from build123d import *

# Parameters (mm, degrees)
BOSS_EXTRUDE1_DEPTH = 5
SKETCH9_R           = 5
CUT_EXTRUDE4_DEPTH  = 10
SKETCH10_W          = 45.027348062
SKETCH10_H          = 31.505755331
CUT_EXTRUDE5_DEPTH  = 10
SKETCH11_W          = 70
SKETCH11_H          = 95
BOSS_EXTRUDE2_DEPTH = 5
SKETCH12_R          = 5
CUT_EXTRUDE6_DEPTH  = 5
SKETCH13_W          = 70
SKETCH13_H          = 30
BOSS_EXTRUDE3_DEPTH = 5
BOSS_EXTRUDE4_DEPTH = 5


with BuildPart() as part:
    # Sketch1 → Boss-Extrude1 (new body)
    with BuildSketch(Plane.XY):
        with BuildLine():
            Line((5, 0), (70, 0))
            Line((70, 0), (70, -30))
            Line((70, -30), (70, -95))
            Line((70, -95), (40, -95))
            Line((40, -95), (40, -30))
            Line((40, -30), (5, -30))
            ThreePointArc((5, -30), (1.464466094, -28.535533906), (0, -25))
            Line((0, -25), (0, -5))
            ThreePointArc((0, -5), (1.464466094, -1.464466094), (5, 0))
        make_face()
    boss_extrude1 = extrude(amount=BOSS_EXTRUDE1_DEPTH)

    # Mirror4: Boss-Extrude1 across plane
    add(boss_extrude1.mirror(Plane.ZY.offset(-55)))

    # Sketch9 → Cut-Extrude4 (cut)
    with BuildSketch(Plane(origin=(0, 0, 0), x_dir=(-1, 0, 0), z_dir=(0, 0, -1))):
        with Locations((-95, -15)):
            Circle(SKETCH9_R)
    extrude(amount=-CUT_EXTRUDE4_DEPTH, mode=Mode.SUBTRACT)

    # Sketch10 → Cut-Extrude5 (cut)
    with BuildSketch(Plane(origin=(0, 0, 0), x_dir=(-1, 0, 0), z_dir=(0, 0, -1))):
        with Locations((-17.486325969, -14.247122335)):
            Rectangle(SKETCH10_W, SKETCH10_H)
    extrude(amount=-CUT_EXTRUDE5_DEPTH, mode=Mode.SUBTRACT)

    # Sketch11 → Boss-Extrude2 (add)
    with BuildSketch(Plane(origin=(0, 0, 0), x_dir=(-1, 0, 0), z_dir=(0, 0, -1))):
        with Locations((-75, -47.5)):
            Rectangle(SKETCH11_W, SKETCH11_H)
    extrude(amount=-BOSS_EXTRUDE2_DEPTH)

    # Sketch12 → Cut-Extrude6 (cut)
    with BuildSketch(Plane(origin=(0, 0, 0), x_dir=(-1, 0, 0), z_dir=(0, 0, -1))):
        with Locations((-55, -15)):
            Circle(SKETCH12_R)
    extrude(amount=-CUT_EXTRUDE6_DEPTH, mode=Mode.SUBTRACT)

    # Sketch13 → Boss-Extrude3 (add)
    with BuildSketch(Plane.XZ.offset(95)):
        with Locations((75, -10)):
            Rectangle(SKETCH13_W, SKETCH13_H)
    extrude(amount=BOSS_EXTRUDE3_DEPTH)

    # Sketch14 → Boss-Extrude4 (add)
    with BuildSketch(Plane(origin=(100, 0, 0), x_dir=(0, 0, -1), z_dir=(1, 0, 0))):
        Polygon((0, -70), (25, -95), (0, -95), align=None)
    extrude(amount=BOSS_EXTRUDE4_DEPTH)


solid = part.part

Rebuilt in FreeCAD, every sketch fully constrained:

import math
import FreeCAD as App
import Part
import Sketcher
from FreeCAD import Vector
Q = App.Units.Quantity


def add_polygon(sketch, points):
    """Adds a closed chain of lines whose ends are joined by coincident constraints."""
    first, n = sketch.GeometryCount, len(points)
    for a, b in zip(points, points[1:] + points[:1]):
        sketch.addGeometry(Part.LineSegment(App.Vector(*a, 0), App.Vector(*b, 0)), False)
    for i in range(n):
        sketch.addConstraint(Sketcher.Constraint("Coincident", first + i, 2, first + (i + 1) % n, 1))

doc = App.newDocument("Part")
body = doc.addObject("PartDesign::Body", "Body")

# Sketch on XY plane
sketch1 = body.newObject("Sketcher::SketchObject", "Sketch")
sketch1.AttachmentSupport = (doc.getObject("XY_Plane"), [""])
sketch1.MapMode = "FlatFace"
sketch1.addGeometry([
    Part.LineSegment(Vector(70, 0, 0), Vector(5, 0, 0)),  # 0
    Part.ArcOfCircle(Part.Circle(Vector(5, -5, 0), Vector(0, 0, 1), 5), math.radians(90), math.radians(180)),  # 1
    Part.LineSegment(Vector(0, -5, 0), Vector(0, -25, 0)),  # 2
    Part.ArcOfCircle(Part.Circle(Vector(5, -25, 0), Vector(0, 0, 1), 5), math.radians(180), math.radians(270)),  # 3
    Part.LineSegment(Vector(5, -30, 0), Vector(40, -30, 0)),  # 4
    Part.LineSegment(Vector(40, -30, 0), Vector(40, -95, 0)),  # 5
    Part.LineSegment(Vector(40, -95, 0), Vector(70, -95, 0)),  # 6
    Part.LineSegment(Vector(70, -95, 0), Vector(70, 0, 0)),  # 7
], False)
sketch1.addConstraint([
    Sketcher.Constraint("Tangent", 0, 2, 1, 1),
    Sketcher.Constraint("Tangent", 1, 2, 2, 1),
    Sketcher.Constraint("Tangent", 2, 2, 3, 1),
    Sketcher.Constraint("Tangent", 3, 2, 4, 1),
    Sketcher.Constraint("Coincident", 4, 2, 5, 1),
    Sketcher.Constraint("Coincident", 5, 2, 6, 1),
    Sketcher.Constraint("Coincident", 6, 2, 7, 1),
    Sketcher.Constraint("Coincident", 7, 2, 0, 1),
    Sketcher.Constraint("Horizontal", 0),
    Sketcher.Constraint("Vertical", 2),
    Sketcher.Constraint("Horizontal", 4),
    Sketcher.Constraint("Vertical", 5),
    Sketcher.Constraint("Horizontal", 6),
    Sketcher.Constraint("Vertical", 7),
    Sketcher.Constraint("Equal", 1, 3),
    Sketcher.Constraint("PointOnObject", 0, 2, -1),
    Sketcher.Constraint("PointOnObject", 1, 2, -2),
    Sketcher.Constraint("Equal", 0, 5),
    Sketcher.Constraint("Radius", 1, Q("5 mm")),
    Sketcher.Constraint("DistanceX", 0, 2, 0, 1, Q("65 mm")),
    Sketcher.Constraint("DistanceX", 4, 1, 4, 2, Q("35 mm")),
    Sketcher.Constraint("DistanceY", 2, 2, 2, 1, Q("20 mm")),
])
pad1 = body.newObject("PartDesign::Pad", "Pad")
pad1.Profile = sketch1
pad1.Length = 5
doc.recompute()

datumplane = body.newObject("PartDesign::Plane", "DatumPlane")
datumplane.AttachmentSupport = (doc.getObject("YZ_Plane"), [""])
datumplane.MapMode = "FlatFace"
datumplane.AttachmentOffset = App.Placement(Vector(0, 0, 55), App.Rotation())
mirrored = body.newObject("PartDesign::Mirrored", "Mirrored")
mirrored.Originals = [pad1]
mirrored.MirrorPlane = (datumplane, [""])
body.Tip = mirrored

# Sketch on XY plane
sketch2 = body.newObject("Sketcher::SketchObject", "Sketch001")
sketch2.AttachmentSupport = (doc.getObject("XY_Plane"), [""])
sketch2.MapMode = "FlatFace"
sketch2.addGeometry(Part.Circle(Vector(95, -15, 0), Vector(0, 0, 1), 5), False)
sketch2.addConstraint([
    Sketcher.Constraint("Diameter", 0, Q("10 mm")),
    Sketcher.Constraint("DistanceX", -1, 1, 0, 3, Q("95 mm")),
    Sketcher.Constraint("DistanceY", 0, 3, -1, 1, Q("15 mm")),
])
pocket1 = body.newObject("PartDesign::Pocket", "Pocket")
pocket1.Profile = sketch2
pocket1.Length = 10
pocket1.Reversed = True

# Sketch on XY plane
sketch3 = body.newObject("Sketcher::SketchObject", "Sketch002")
sketch3.AttachmentSupport = (doc.getObject("XY_Plane"), [""])
sketch3.MapMode = "FlatFace"
add_polygon(sketch3, [(40, 2), (40, -30), (-5, -30), (-5, 2)])  # lines 0-3
sketch3.addConstraint([
    Sketcher.Constraint("Vertical", 0),
    Sketcher.Constraint("Horizontal", 1),
    Sketcher.Constraint("Vertical", 2),
    Sketcher.Constraint("Horizontal", 3),
    Sketcher.Constraint("DistanceX", -1, 1, 0, 2, Q("40 mm")),
    Sketcher.Constraint("DistanceY", 0, 2, -1, 1, Q("30 mm")),
    Sketcher.Constraint("DistanceX", 1, 2, 1, 1, Q("45.027348 mm")),
    Sketcher.Constraint("DistanceY", 0, 2, 0, 1, Q("31.505755 mm")),
])
pocket2 = body.newObject("PartDesign::Pocket", "Pocket001")
pocket2.Profile = sketch3
pocket2.Length = 10
pocket2.Reversed = True

# Sketch on XY plane
sketch4 = body.newObject("Sketcher::SketchObject", "Sketch003")
sketch4.AttachmentSupport = (doc.getObject("XY_Plane"), [""])
sketch4.MapMode = "FlatFace"
add_polygon(sketch4, [(110, 0), (110, -95), (40, -95), (40, 0)])  # lines 0-3
sketch4.addConstraint([
    Sketcher.Constraint("Vertical", 0),
    Sketcher.Constraint("Horizontal", 1),
    Sketcher.Constraint("Vertical", 2),
    Sketcher.Constraint("Horizontal", 3),
    Sketcher.Constraint("PointOnObject", 2, 2, -1),
    Sketcher.Constraint("DistanceX", 1, 2, 1, 1, Q("70 mm")),
    Sketcher.Constraint("DistanceY", 0, 2, 0, 1, Q("95 mm")),
    Sketcher.Constraint("DistanceX", -1, 1, 0, 2, Q("110 mm")),
])
pad2 = body.newObject("PartDesign::Pad", "Pad001")
pad2.Profile = sketch4
pad2.Length = 5

# Sketch on XY plane
sketch5 = body.newObject("Sketcher::SketchObject", "Sketch004")
sketch5.AttachmentSupport = (doc.getObject("XY_Plane"), [""])
sketch5.MapMode = "FlatFace"
sketch5.addGeometry(Part.Circle(Vector(55, -15, 0), Vector(0, 0, 1), 5), False)
sketch5.addConstraint([
    Sketcher.Constraint("Diameter", 0, Q("10 mm")),
    Sketcher.Constraint("DistanceX", -1, 1, 0, 3, Q("55 mm")),
    Sketcher.Constraint("DistanceY", 0, 3, -1, 1, Q("15 mm")),
])
pocket3 = body.newObject("PartDesign::Pocket", "Pocket002")
pocket3.Profile = sketch5
pocket3.Length = 5
pocket3.Reversed = True

# Sketch on XZ plane
sketch6 = body.newObject("Sketcher::SketchObject", "Sketch005")
sketch6.AttachmentSupport = (doc.getObject("XZ_Plane"), [""])
sketch6.MapMode = "FlatFace"
sketch6.AttachmentOffset = App.Placement(Vector(0, 0, 95), App.Rotation())
add_polygon(sketch6, [(40, 5), (40, -25), (110, -25), (110, 5)])  # lines 0-3
sketch6.addConstraint([
    Sketcher.Constraint("Vertical", 0),
    Sketcher.Constraint("Horizontal", 1),
    Sketcher.Constraint("Vertical", 2),
    Sketcher.Constraint("Horizontal", 3),
    Sketcher.Constraint("DistanceX", 1, 1, 1, 2, Q("70 mm")),
    Sketcher.Constraint("DistanceY", 0, 2, 0, 1, Q("30 mm")),
    Sketcher.Constraint("DistanceX", -1, 1, 0, 2, Q("40 mm")),
    Sketcher.Constraint("DistanceY", 0, 2, -1, 1, Q("25 mm")),
])
pad3 = body.newObject("PartDesign::Pad", "Pad002")
pad3.Profile = sketch6
pad3.Length = 5

# Sketch on YZ plane
sketch7 = body.newObject("Sketcher::SketchObject", "Sketch006")
sketch7.AttachmentSupport = (doc.getObject("YZ_Plane"), [""])
sketch7.MapMode = "FlatFace"
sketch7.AttachmentOffset = App.Placement(Vector(0, 0, 100), App.Rotation())
add_polygon(sketch7, [(-95, -25), (-70, 0), (-95, 0)])  # lines 0-2
sketch7.addConstraint([
    Sketcher.Constraint("Horizontal", 1),
    Sketcher.Constraint("Vertical", 2),
    Sketcher.Constraint("PointOnObject", 0, 2, -1),
    Sketcher.Constraint("Equal", 1, 2),
    Sketcher.Constraint("DistanceX", 1, 2, 1, 1, Q("25 mm")),
    Sketcher.Constraint("DistanceX", 0, 2, -1, 1, Q("70 mm")),
])
pad4 = body.newObject("PartDesign::Pad", "Pad003")
pad4.Profile = sketch7
pad4.Length = 5

doc.recompute()
